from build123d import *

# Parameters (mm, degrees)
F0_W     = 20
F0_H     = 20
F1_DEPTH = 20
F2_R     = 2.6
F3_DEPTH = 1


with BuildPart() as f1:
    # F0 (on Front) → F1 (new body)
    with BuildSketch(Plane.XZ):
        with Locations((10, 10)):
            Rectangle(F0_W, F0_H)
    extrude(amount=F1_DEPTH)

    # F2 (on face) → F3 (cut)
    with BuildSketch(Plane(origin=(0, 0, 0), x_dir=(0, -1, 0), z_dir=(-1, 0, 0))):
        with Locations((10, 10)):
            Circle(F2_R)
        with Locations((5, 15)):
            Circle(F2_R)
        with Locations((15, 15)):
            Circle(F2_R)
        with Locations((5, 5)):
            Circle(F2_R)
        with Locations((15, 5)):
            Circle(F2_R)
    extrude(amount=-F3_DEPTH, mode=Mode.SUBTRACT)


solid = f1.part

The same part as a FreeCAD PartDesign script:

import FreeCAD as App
import Part
import Sketcher


def add_polygon(sketch, points):
    """Adds a closed chain of lines whose ends are joined by coincident constraints."""
    first, n = sketch.GeometryCount, len(points)
    for a, b in zip(points, points[1:] + points[:1]):
        sketch.addGeometry(Part.LineSegment(App.Vector(*a, 0), App.Vector(*b, 0)), False)
    for i in range(n):
        sketch.addConstraint(Sketcher.Constraint("Coincident", first + i, 2, first + (i + 1) % n, 1))

doc = App.newDocument("Part")
body = doc.addObject("PartDesign::Body", "Body")

sketch1 = body.newObject("Sketcher::SketchObject", "Sketch")
sketch1.AttachmentSupport = (doc.getObject("XZ_Plane"), [""])
sketch1.MapMode = "FlatFace"
add_polygon(sketch1, [(0, 20), (0, 0), (20, 0), (20, 20)])
sketch1.addConstraint(Sketcher.Constraint("Vertical", 0))
sketch1.addConstraint(Sketcher.Constraint("Horizontal", 1))
sketch1.addConstraint(Sketcher.Constraint("Vertical", 2))
sketch1.addConstraint(Sketcher.Constraint("Horizontal", 3))
sketch1.addConstraint(Sketcher.Constraint("Coincident", 0, 2, -1, 1))
sketch1.addConstraint(Sketcher.Constraint("Equal", 3, 0))
sketch1.addConstraint(Sketcher.Constraint("DistanceX", 1, 1, 1, 2, 20.0))
pad1 = body.newObject("PartDesign::Pad", "Pad")
pad1.Profile = sketch1
pad1.Length = 20

sketch2 = body.newObject("Sketcher::SketchObject", "Sketch001")
sketch2.AttachmentSupport = (doc.getObject("YZ_Plane"), [""])
sketch2.MapMode = "FlatFace"
sketch2.addGeometry(Part.Circle(App.Vector(-10, 10, 0), App.Vector(0, 0, 1), 2.6), False)
sketch2.addGeometry(Part.Circle(App.Vector(-5, 15, 0), App.Vector(0, 0, 1), 2.6), False)
sketch2.addGeometry(Part.Circle(App.Vector(-15, 15, 0), App.Vector(0, 0, 1), 2.6), False)
sketch2.addGeometry(Part.Circle(App.Vector(-5, 5, 0), App.Vector(0, 0, 1), 2.6), False)
sketch2.addGeometry(Part.Circle(App.Vector(-15, 5, 0), App.Vector(0, 0, 1), 2.6), False)
sketch2.addConstraint(Sketcher.Constraint("Equal", 0, 1))
sketch2.addConstraint(Sketcher.Constraint("Equal", 1, 2))
sketch2.addConstraint(Sketcher.Constraint("Equal", 2, 3))
sketch2.addConstraint(Sketcher.Constraint("Equal", 3, 4))
sketch2.addConstraint(Sketcher.Constraint("Horizontal", 1, 3, 2, 3))
sketch2.addConstraint(Sketcher.Constraint("Horizontal", 3, 3, 4, 3))
sketch2.addConstraint(Sketcher.Constraint("Vertical", 1, 3, 3, 3))
sketch2.addConstraint(Sketcher.Constraint("Vertical", 2, 3, 4, 3))
sketch2.addConstraint(Sketcher.Constraint("Diameter", 0, 5.2))
sketch2.addConstraint(Sketcher.Constraint("DistanceX", 0, 3, -1, 1, 10.0))
sketch2.addConstraint(Sketcher.Constraint("DistanceY", -1, 1, 0, 3, 10.0))
sketch2.addConstraint(Sketcher.Constraint("DistanceX", 1, 3, -1, 1, 5.0))
sketch2.addConstraint(Sketcher.Constraint("DistanceY", -1, 1, 1, 3, 15.0))
sketch2.addConstraint(Sketcher.Constraint("DistanceX", 2, 3, -1, 1, 15.0))
sketch2.addConstraint(Sketcher.Constraint("DistanceY", -1, 1, 3, 3, 5.0))
pocket1 = body.newObject("PartDesign::Pocket", "Pocket")
pocket1.Profile = sketch2
pocket1.Length = 1
pocket1.Reversed = True

doc.recompute()
